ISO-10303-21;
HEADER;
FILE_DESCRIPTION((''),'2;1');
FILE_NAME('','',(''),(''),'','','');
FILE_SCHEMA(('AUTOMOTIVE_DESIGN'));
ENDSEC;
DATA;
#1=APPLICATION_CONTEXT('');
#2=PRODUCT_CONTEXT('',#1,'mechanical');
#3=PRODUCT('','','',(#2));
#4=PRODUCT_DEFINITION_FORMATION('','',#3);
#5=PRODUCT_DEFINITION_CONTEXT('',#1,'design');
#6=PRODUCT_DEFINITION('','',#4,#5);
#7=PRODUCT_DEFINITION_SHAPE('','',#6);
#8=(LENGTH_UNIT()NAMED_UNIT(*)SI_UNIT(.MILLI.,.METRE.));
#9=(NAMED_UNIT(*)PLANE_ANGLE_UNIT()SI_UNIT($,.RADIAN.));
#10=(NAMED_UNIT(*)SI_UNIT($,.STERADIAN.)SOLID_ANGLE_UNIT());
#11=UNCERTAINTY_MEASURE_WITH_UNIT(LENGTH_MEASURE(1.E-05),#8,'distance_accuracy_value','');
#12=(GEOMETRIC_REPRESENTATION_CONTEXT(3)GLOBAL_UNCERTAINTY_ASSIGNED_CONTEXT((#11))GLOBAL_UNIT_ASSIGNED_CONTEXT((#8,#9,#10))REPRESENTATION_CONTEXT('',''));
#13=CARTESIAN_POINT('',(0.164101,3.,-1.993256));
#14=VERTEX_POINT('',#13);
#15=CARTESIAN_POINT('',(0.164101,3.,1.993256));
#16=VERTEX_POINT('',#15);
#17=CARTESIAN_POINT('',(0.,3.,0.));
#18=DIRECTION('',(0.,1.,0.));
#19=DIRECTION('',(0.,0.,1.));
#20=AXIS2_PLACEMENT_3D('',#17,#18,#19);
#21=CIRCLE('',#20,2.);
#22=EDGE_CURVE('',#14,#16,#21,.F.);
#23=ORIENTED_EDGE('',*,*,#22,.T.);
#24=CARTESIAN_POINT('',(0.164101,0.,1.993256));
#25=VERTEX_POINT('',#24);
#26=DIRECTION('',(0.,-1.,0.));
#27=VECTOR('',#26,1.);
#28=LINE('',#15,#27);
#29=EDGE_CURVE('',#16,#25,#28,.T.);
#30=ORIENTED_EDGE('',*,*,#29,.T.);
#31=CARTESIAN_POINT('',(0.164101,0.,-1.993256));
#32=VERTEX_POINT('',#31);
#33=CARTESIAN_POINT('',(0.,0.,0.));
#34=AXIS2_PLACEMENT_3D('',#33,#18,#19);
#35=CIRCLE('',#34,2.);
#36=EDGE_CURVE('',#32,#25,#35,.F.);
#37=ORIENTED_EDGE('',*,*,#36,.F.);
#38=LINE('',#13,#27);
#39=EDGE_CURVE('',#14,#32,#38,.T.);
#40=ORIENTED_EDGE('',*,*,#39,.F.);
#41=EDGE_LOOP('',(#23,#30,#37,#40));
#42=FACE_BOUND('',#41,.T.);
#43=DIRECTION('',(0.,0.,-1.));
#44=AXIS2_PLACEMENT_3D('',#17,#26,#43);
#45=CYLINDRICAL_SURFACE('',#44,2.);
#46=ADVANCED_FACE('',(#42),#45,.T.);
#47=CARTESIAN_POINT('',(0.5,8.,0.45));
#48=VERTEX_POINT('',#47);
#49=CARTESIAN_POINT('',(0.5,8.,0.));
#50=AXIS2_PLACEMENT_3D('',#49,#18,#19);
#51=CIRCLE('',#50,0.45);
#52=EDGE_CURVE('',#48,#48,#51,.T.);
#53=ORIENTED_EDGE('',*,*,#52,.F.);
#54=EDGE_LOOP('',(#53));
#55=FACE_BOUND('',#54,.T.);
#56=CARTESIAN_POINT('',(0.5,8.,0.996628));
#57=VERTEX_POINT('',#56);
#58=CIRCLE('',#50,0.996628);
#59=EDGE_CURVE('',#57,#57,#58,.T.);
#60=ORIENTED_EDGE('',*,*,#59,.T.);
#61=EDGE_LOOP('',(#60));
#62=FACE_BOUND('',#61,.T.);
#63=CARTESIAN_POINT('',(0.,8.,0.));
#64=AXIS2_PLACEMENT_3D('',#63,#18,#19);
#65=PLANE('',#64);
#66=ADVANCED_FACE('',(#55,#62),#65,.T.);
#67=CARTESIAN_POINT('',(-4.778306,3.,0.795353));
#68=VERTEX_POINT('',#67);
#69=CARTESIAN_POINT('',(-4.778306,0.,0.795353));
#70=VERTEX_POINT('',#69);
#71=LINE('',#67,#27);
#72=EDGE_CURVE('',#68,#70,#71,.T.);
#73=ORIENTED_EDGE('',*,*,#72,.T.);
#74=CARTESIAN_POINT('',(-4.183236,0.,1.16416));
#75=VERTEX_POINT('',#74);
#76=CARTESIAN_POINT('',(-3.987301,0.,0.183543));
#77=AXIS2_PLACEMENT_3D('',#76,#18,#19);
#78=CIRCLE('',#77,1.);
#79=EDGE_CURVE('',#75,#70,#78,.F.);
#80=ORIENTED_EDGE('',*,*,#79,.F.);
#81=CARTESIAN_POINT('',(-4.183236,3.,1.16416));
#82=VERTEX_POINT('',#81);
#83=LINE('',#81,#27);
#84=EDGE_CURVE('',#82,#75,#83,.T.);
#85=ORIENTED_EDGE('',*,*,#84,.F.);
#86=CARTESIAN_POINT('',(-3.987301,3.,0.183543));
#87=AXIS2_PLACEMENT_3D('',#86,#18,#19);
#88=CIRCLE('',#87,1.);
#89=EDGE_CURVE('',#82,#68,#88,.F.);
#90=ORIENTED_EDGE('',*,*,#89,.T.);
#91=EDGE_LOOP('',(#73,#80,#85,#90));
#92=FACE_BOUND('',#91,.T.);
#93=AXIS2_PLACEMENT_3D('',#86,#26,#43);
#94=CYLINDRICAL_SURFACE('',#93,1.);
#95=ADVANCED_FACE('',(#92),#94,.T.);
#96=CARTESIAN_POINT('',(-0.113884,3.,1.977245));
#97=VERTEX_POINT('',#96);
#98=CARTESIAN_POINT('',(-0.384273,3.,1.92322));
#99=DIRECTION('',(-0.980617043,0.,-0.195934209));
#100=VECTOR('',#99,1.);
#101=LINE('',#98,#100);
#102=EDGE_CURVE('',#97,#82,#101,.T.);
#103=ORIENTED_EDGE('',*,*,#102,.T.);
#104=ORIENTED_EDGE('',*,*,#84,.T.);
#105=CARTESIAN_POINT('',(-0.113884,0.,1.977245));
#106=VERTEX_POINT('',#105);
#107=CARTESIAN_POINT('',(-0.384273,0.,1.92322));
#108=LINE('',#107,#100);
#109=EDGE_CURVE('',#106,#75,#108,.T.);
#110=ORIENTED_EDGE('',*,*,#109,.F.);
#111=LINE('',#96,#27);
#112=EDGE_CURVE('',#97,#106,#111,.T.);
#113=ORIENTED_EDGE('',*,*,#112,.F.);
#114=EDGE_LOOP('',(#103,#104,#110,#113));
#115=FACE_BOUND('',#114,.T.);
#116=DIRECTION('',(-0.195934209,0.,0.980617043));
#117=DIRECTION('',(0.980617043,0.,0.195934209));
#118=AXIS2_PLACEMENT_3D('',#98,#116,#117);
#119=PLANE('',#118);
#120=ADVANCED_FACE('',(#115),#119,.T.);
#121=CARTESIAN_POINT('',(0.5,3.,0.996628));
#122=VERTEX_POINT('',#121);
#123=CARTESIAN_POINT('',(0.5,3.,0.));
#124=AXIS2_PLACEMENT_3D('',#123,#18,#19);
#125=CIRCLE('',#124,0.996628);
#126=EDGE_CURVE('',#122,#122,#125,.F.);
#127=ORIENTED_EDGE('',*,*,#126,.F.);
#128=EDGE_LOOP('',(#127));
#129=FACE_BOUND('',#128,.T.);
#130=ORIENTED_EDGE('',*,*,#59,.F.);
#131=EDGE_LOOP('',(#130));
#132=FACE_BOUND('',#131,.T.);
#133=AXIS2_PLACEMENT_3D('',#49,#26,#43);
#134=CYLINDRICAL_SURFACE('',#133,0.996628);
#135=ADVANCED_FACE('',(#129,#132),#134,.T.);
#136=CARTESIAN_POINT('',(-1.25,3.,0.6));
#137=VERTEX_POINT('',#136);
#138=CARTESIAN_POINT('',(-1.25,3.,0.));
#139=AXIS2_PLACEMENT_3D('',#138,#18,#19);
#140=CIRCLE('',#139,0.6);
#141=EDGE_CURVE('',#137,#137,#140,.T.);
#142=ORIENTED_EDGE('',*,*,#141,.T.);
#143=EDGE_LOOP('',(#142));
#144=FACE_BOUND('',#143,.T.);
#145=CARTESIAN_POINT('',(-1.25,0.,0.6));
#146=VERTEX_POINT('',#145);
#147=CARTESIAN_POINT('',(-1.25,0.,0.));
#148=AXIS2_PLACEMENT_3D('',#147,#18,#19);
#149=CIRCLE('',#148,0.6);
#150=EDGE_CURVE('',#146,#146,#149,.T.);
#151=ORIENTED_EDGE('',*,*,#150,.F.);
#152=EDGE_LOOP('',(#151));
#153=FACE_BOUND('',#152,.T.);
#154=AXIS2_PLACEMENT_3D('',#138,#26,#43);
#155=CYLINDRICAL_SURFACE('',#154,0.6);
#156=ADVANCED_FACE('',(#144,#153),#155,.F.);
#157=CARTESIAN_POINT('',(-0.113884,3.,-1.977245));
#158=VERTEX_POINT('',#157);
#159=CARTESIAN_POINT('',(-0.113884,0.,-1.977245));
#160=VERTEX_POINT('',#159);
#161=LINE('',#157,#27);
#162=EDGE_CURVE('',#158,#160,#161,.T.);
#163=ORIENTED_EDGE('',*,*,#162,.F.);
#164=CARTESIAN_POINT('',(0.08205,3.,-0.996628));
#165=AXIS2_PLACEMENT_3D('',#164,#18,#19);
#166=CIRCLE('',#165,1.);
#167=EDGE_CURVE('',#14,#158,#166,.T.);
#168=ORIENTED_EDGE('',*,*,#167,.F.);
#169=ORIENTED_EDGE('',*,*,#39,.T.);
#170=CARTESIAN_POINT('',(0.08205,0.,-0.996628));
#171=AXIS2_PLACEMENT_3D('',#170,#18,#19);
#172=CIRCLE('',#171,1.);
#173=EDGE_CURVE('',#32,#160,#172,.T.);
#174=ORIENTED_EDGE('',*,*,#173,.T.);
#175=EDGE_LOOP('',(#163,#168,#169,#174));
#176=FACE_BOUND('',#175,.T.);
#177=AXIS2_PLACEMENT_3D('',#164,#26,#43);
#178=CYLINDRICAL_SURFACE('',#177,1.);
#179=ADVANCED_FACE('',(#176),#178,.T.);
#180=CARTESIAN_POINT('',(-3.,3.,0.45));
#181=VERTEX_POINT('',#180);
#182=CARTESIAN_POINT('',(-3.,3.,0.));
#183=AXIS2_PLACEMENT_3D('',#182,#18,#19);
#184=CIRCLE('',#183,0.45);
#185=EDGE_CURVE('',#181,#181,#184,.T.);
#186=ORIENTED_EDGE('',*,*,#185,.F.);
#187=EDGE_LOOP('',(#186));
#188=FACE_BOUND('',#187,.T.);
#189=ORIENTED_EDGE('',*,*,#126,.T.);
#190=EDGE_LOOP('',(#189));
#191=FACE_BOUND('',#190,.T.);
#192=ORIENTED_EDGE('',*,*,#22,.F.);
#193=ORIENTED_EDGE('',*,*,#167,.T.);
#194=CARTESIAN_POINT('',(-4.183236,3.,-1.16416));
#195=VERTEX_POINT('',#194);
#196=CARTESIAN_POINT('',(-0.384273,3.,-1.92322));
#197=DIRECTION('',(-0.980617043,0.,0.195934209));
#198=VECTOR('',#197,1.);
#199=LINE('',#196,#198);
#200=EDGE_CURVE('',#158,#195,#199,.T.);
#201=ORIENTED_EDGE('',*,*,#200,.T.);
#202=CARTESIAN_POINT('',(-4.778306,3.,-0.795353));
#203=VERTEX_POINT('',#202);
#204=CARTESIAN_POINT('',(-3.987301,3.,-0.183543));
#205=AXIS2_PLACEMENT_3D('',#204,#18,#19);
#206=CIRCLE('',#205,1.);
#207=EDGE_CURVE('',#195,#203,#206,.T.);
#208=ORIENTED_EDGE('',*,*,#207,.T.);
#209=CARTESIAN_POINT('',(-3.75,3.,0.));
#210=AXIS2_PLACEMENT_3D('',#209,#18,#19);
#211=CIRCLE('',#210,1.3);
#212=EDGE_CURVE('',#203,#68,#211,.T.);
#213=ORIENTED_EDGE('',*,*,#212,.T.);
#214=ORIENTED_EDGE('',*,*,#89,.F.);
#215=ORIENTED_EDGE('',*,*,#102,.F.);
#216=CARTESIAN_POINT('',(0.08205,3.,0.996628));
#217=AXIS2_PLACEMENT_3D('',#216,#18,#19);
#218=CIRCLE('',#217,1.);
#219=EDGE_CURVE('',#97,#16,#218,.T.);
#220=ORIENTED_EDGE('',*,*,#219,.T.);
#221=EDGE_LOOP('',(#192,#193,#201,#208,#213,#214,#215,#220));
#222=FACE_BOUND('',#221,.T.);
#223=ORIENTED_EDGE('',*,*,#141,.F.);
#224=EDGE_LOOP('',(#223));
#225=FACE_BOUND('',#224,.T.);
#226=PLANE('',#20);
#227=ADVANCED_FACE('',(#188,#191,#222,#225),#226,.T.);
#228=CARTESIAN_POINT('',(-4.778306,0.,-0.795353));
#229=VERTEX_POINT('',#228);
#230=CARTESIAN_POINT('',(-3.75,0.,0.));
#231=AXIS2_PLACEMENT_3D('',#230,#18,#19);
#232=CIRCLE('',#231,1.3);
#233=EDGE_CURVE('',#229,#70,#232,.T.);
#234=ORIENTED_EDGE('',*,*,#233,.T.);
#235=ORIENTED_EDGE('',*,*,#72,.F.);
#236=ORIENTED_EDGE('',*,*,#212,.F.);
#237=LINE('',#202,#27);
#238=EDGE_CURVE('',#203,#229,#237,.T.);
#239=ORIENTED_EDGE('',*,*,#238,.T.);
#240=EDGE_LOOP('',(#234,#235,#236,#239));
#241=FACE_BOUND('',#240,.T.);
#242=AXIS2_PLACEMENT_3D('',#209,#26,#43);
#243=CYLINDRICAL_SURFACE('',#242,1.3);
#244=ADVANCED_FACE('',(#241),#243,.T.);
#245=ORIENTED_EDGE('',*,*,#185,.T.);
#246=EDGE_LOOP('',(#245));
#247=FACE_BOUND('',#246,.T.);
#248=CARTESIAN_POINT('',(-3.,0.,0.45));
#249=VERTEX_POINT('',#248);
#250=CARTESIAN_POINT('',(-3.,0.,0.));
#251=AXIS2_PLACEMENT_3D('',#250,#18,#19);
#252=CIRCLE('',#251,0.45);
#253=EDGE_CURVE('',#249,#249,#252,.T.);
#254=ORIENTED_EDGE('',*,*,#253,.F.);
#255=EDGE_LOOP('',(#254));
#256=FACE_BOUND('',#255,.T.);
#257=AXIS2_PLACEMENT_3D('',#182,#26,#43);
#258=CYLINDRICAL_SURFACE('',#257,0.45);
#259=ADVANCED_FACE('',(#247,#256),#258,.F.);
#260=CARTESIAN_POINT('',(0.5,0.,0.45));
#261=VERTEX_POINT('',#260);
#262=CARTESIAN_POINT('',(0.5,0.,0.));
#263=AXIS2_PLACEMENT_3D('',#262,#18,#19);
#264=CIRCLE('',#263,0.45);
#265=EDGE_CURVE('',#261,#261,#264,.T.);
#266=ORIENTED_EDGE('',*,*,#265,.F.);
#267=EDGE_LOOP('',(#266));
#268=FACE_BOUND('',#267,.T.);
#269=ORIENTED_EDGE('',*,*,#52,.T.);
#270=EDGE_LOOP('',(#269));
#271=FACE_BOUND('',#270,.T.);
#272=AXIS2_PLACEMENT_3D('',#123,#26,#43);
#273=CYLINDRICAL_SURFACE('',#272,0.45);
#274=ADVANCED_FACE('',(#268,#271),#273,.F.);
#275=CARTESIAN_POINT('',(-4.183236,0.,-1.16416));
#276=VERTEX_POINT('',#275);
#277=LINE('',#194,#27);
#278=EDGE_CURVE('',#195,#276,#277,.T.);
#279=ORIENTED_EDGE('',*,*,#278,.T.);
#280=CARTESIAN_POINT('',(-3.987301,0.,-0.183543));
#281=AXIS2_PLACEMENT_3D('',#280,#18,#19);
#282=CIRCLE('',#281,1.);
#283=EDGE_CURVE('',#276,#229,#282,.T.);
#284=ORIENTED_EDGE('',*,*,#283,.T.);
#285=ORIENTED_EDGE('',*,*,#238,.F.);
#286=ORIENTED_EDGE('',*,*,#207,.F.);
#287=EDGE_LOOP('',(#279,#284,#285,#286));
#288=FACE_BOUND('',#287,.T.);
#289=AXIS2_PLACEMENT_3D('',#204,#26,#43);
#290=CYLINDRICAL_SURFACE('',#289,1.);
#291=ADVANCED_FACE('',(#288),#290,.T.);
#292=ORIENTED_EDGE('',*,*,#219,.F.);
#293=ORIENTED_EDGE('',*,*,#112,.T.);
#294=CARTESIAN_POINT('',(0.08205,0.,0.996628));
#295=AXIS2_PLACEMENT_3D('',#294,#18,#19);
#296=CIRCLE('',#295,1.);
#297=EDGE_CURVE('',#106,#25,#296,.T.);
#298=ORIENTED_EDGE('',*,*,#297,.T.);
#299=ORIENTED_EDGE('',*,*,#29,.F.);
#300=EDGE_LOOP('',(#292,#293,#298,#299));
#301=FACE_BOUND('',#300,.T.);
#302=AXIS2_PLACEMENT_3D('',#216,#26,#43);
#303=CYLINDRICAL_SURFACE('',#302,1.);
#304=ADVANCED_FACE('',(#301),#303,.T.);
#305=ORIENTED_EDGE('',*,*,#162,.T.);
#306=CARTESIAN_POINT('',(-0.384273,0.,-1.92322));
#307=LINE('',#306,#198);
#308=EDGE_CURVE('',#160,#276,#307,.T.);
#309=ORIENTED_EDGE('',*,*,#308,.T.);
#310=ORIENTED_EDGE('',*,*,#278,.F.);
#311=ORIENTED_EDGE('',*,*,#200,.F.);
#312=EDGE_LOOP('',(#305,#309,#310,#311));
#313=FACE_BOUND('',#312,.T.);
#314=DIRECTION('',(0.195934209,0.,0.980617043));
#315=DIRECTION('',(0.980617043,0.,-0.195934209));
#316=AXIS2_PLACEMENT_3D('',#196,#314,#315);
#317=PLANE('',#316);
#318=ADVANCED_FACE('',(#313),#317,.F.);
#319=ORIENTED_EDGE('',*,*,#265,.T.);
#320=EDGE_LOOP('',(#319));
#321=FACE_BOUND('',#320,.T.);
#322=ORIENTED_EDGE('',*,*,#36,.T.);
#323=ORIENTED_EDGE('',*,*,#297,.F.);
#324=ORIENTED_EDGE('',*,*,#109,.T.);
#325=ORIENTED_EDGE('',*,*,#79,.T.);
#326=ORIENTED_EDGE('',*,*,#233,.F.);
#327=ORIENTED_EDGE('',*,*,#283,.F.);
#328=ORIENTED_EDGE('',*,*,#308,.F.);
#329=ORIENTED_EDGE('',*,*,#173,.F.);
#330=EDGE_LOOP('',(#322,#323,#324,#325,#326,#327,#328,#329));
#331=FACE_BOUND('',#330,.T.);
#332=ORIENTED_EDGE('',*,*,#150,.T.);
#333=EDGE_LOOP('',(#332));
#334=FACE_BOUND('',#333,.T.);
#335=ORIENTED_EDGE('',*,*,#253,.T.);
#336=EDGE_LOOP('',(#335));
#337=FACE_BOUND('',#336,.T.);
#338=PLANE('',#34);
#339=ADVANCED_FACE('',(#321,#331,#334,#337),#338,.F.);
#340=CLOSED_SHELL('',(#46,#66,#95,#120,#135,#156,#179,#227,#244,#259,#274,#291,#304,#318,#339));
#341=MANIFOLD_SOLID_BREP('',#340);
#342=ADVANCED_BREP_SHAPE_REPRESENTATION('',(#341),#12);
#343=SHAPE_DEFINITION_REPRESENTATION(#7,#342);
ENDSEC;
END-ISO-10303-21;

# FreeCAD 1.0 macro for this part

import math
import FreeCAD as App
import Part
import Sketcher
from FreeCAD import Vector
Q = App.Units.Quantity

doc = App.newDocument("Part")
body = doc.addObject("PartDesign::Body", "Body")

sketch1 = body.newObject("Sketcher::SketchObject", "Sketch")
sketch1.AttachmentSupport = (doc.getObject("XZ_Plane"), [""])
sketch1.MapMode = "FlatFace"
sketch1.addGeometry([
    Part.ArcOfCircle(Part.Circle(Vector(0.08, -1, 0), Vector(0, 0, 1), 1), math.radians(-101.3), math.radians(-85.29)),
    Part.LineSegment(Vector(-0.11, -1.98, 0), Vector(-4.18, -1.16, 0)),
    Part.ArcOfCircle(Part.Circle(Vector(-3.99, -0.18, 0), Vector(0, 0, 1), 1), math.radians(-142), math.radians(-101)),
    Part.ArcOfCircle(Part.Circle(Vector(-3.75, 0, 0), Vector(0, 0, 1), 1.3), math.radians(142), math.radians(218)),
    Part.ArcOfCircle(Part.Circle(Vector(-3.99, 0.18, 0), Vector(0, 0, 1), 1), math.radians(101), math.radians(142)),
    Part.LineSegment(Vector(-4.18, 1.16, 0), Vector(-0.11, 1.98, 0)),
    Part.ArcOfCircle(Part.Circle(Vector(0.08, 1, 0), Vector(0, 0, 1), 1), math.radians(85.29), math.radians(101.3)),
    Part.ArcOfCircle(Part.Circle(Vector(0, 0, 0), Vector(0, 0, 1), 2), math.radians(-85), math.radians(85)),
    Part.Circle(Vector(-3, 0, 0), Vector(0, 0, 1), 0.45),
    Part.Circle(Vector(-1.25, 0, 0), Vector(0, 0, 1), 0.6),
    Part.Circle(Vector(0.5, 0, 0), Vector(0, 0, 1), 0.45),
], False)
sketch1.addConstraint([
    Sketcher.Constraint("Tangent", 0, 1, 1, 1),
    Sketcher.Constraint("Tangent", 1, 2, 2, 2),
    Sketcher.Constraint("Tangent", 2, 1, 3, 2),
    Sketcher.Constraint("Tangent", 3, 1, 4, 2),
    Sketcher.Constraint("Tangent", 4, 1, 5, 1),
    Sketcher.Constraint("Tangent", 5, 2, 6, 2),
    Sketcher.Constraint("Tangent", 6, 1, 7, 2),
    Sketcher.Constraint("Tangent", 7, 1, 0, 2),
    Sketcher.Constraint("Coincident", 7, 3, -1, 1),
    Sketcher.Constraint("Equal", 0, 2),
    Sketcher.Constraint("Equal", 2, 4),
    Sketcher.Constraint("Equal", 4, 6),
    Sketcher.Constraint("Equal", 8, 10),
    Sketcher.Constraint("Symmetric", 2, 3, 4, 3, -1),
    Sketcher.Constraint("PointOnObject", 8, 3, -1),
    Sketcher.Constraint("PointOnObject", 9, 3, -1),
    Sketcher.Constraint("PointOnObject", 10, 3, -1),
    Sketcher.Constraint("Vertical", 0, 3, 6, 3),
    Sketcher.Constraint("Radius", 0, Q("1 mm")),
    Sketcher.Constraint("Radius", 7, Q("2 mm")),
    Sketcher.Constraint("Diameter", 8, Q("0.9 mm")),
    Sketcher.Constraint("Diameter", 9, Q("1.2 mm")),
    Sketcher.Constraint("Radius", 3, Q("1.3 mm")),
    Sketcher.Constraint("DistanceX", 8, 3, -1, 1, Q("3 mm")),
    Sketcher.Constraint("DistanceX", -1, 1, 10, 3, Q("0.5 mm")),
    Sketcher.Constraint("DistanceX", 3, 3, 9, 3, Q("2.5 mm")),
    Sketcher.Constraint("DistanceX", 3, 3, -1, 1, Q("3.75 mm")),
    Sketcher.Constraint("DistanceX", 2, 3, -1, 1, Q("3.987301 mm")),
    Sketcher.Constraint("DistanceX", -1, 1, 6, 1, Q("0.164101 mm")),
])
pad1 = body.newObject("PartDesign::Pad", "Pad")
pad1.Profile = sketch1
pad1.Length = 3
pad1.Reversed = True

sketch2 = body.newObject("Sketcher::SketchObject", "Sketch001")
sketch2.AttachmentSupport = (doc.getObject("XZ_Plane"), [""])
sketch2.MapMode = "FlatFace"
sketch2.addGeometry([
    Part.Circle(Vector(0.5, 0, 0), Vector(0, 0, 1), 1),
    Part.Circle(Vector(0.5, 0, 0), Vector(0, 0, 1), 0.45),
], False)
sketch2.addConstraint([
    Sketcher.Constraint("Coincident", 1, 3, 0, 3),
    Sketcher.Constraint("PointOnObject", 0, 3, -1),
    Sketcher.Constraint("Diameter", 1, Q("0.9 mm")),
    Sketcher.Constraint("DistanceX", -1, 1, 0, 3, Q("0.5 mm")),
    Sketcher.Constraint("Diameter", 0, Q("1.993256 mm")),
])
pad2 = body.newObject("PartDesign::Pad", "Pad001")
pad2.Profile = sketch2
pad2.Length = 8
pad2.Reversed = True

doc.recompute()
